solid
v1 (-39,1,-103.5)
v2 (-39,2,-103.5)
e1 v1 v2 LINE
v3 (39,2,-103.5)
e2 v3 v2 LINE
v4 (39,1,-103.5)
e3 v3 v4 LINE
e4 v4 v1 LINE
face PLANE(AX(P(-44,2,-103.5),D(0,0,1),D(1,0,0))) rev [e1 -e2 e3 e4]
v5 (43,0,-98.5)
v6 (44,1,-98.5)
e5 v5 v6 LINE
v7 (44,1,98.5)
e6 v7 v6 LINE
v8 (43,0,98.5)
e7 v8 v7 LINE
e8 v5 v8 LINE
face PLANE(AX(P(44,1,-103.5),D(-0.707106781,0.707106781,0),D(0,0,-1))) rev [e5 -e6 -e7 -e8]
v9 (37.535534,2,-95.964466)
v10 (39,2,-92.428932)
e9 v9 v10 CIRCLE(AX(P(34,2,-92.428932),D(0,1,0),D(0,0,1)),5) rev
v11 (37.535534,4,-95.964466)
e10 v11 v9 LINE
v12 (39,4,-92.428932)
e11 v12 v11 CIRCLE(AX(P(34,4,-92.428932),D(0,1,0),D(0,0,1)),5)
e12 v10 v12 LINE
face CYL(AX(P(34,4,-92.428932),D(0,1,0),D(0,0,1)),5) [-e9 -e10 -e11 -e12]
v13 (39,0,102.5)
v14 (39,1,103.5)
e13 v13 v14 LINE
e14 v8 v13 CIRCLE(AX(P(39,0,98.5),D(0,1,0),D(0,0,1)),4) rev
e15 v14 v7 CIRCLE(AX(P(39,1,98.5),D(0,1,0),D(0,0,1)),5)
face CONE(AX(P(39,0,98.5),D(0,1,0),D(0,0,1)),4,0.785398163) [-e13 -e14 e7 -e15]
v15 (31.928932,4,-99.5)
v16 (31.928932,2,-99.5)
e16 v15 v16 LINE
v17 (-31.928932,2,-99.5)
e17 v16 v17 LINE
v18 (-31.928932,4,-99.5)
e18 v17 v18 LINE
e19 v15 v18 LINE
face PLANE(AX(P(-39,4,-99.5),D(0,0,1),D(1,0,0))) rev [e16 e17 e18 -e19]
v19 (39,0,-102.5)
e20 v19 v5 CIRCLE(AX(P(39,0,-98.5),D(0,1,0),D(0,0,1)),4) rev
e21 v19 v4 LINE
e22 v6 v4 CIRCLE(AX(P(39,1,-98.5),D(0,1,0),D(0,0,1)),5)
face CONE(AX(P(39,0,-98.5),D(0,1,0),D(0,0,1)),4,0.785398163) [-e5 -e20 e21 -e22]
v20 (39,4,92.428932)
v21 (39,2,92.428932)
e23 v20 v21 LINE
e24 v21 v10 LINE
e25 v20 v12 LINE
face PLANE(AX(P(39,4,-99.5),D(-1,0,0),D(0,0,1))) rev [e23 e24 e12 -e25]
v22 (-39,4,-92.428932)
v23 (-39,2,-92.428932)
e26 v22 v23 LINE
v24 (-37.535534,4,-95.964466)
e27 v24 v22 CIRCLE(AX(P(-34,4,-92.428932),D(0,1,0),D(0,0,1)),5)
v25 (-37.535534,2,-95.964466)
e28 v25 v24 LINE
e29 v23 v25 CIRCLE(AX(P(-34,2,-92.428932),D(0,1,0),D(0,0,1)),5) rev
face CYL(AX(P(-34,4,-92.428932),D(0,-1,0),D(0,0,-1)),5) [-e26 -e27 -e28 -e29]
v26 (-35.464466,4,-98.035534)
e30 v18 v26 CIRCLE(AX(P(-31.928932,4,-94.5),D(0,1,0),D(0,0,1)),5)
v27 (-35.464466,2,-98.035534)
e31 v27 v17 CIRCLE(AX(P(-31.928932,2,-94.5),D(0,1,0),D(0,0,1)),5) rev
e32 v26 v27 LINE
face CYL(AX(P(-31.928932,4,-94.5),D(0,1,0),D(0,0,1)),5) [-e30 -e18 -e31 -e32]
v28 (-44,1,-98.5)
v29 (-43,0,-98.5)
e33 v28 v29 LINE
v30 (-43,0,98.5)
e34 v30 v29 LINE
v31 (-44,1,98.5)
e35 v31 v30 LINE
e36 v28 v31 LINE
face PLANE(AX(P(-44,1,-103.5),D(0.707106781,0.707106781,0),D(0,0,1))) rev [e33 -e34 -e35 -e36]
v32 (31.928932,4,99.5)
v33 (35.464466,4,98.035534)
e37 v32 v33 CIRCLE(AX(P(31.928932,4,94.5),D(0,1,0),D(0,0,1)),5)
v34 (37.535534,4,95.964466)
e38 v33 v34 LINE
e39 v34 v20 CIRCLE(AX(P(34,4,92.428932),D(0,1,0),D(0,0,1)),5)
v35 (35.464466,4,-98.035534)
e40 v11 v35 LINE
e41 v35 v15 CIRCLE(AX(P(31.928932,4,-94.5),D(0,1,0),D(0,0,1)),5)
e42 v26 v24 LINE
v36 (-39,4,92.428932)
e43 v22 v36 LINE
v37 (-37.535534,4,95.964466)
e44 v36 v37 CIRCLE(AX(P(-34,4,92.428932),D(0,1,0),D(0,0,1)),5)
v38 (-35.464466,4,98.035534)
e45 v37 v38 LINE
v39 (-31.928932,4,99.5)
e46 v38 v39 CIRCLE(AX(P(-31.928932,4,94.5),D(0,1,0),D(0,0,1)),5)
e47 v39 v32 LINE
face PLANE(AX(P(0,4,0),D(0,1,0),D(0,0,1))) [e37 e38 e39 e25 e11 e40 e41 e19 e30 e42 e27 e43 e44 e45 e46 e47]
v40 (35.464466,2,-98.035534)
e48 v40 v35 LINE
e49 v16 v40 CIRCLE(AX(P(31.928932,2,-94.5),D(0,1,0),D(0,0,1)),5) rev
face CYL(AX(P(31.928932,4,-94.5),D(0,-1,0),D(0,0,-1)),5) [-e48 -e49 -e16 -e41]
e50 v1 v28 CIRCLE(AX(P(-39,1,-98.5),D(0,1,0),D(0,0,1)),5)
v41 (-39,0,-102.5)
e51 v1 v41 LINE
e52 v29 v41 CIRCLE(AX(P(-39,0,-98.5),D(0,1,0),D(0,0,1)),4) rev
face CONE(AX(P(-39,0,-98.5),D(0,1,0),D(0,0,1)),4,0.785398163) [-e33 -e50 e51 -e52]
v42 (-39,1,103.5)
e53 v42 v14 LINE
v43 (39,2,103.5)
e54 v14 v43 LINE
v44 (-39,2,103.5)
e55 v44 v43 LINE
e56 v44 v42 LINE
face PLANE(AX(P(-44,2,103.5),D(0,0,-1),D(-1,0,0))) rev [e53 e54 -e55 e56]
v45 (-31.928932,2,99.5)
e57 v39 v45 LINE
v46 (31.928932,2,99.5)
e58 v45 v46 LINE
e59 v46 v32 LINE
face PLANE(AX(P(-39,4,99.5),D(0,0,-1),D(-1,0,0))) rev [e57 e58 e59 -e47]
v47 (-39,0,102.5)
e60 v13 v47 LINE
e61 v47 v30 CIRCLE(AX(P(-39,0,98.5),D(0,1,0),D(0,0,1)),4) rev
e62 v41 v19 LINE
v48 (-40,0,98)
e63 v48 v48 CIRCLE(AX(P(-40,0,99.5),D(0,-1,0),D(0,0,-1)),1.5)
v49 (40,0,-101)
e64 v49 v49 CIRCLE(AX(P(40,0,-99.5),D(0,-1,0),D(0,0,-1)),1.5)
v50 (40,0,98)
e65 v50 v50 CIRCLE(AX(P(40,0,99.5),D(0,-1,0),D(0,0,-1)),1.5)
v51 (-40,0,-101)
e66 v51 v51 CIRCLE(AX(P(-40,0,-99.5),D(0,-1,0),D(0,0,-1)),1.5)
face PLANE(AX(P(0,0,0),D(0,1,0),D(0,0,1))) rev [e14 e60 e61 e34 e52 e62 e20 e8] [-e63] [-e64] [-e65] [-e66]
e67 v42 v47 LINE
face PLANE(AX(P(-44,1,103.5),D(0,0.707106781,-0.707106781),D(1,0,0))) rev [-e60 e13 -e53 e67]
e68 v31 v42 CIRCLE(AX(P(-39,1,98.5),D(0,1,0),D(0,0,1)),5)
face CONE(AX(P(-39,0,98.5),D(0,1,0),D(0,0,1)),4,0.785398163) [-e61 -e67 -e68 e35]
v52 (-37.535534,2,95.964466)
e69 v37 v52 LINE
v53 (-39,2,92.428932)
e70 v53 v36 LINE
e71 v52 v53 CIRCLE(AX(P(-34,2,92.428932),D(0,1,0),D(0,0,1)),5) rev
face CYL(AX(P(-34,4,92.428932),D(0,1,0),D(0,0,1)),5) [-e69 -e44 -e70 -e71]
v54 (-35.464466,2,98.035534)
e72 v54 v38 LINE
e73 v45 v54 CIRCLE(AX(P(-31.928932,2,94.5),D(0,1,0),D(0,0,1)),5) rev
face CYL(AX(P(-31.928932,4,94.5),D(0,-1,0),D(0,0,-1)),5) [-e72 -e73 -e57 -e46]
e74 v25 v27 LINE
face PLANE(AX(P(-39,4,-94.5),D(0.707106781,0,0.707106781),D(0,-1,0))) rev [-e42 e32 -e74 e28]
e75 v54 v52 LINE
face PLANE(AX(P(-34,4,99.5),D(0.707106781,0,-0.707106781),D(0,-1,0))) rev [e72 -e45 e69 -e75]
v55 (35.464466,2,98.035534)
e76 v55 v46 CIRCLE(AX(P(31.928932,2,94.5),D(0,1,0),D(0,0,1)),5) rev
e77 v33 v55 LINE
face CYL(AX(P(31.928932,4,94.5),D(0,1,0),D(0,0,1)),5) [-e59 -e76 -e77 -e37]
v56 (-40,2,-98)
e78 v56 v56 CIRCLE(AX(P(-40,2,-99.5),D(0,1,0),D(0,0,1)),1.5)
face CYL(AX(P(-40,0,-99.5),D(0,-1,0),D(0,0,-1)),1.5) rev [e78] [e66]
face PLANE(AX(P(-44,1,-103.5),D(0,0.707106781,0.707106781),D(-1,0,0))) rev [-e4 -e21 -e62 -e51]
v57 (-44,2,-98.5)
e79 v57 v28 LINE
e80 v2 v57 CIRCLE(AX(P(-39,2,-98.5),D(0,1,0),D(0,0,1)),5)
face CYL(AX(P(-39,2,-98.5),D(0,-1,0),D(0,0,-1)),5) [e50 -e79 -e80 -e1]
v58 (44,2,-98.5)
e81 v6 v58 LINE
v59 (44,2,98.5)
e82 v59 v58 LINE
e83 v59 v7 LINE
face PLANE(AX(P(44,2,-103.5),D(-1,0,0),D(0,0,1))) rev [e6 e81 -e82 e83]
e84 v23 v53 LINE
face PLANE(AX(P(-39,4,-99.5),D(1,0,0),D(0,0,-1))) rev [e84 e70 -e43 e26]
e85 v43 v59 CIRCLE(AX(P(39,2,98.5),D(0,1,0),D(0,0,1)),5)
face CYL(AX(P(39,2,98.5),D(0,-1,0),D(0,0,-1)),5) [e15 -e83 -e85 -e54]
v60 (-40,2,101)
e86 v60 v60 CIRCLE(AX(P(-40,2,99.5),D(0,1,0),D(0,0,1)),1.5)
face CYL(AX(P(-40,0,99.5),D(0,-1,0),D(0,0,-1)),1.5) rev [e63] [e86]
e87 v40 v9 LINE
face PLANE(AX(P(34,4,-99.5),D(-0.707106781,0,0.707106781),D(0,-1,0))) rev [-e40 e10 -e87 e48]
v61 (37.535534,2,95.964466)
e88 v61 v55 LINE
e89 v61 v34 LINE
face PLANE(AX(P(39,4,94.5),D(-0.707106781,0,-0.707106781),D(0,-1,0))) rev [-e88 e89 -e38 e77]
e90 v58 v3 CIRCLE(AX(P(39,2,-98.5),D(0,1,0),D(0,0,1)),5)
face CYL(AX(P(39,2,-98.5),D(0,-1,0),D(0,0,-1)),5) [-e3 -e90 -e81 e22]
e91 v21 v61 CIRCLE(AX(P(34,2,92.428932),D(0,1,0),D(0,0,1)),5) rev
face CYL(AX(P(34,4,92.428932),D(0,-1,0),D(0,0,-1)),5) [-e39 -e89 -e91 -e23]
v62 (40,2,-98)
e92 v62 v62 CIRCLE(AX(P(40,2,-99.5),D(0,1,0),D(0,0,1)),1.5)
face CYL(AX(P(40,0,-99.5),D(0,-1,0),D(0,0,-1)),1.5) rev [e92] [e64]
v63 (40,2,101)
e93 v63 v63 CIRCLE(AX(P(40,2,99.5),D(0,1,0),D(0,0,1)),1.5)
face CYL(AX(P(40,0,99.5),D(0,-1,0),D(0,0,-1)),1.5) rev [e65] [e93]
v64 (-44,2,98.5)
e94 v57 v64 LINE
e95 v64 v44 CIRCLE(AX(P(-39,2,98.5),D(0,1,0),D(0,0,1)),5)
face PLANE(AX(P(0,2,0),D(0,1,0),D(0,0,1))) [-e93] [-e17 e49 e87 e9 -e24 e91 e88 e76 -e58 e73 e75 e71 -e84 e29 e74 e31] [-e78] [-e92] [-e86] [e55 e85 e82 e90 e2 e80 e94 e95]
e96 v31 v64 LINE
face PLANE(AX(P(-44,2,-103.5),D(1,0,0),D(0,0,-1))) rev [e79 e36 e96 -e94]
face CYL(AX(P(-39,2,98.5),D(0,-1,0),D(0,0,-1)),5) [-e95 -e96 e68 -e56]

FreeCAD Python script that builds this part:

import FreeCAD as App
import Part
import Sketcher


def edges_at(feature, points):
    """Names of the edges that pass closest to the given points."""
    edges = feature.Shape.Edges
    near = lambda p: min(range(len(edges)), key=lambda i: edges[i].distToShape(Part.Vertex(*p))[0])
    return sorted({f"Edge{near(p) + 1}" for p in points})


def add_polygon(sketch, points):
    """Adds a closed chain of lines whose ends are joined by coincident constraints."""
    first, n = sketch.GeometryCount, len(points)
    for a, b in zip(points, points[1:] + points[:1]):
        sketch.addGeometry(Part.LineSegment(App.Vector(*a, 0), App.Vector(*b, 0)), False)
    for i in range(n):
        sketch.addConstraint(Sketcher.Constraint("Coincident", first + i, 2, first + (i + 1) % n, 1))

doc = App.newDocument("Part")
body = doc.addObject("PartDesign::Body", "Body")

# Sketch on XZ plane
sketch1 = body.newObject("Sketcher::SketchObject", "Sketch")
sketch1.AttachmentSupport = (doc.getObject("XZ_Plane"), [""])
sketch1.MapMode = "FlatFace"
add_polygon(sketch1, [(-44, -104), (-44, 104), (44, 104), (44, -104)])  # lines 0-3
sketch1.addConstraint(Sketcher.Constraint("Vertical", 0))
sketch1.addConstraint(Sketcher.Constraint("Horizontal", 1))
sketch1.addConstraint(Sketcher.Constraint("Vertical", 2))
sketch1.addConstraint(Sketcher.Constraint("Horizontal", 3))
sketch1.addConstraint(Sketcher.Constraint("Symmetric", 0, 2, 2, 2, -1, 1))
sketch1.addConstraint(Sketcher.Constraint("DistanceX", 1, 1, 1, 2, 88.0))
sketch1.addConstraint(Sketcher.Constraint("DistanceY", 0, 1, 0, 2, 207.0))
pad1 = body.newObject("PartDesign::Pad", "Pad")
pad1.Profile = sketch1
pad1.Length = 2
pad1.Reversed = True

# Sketch on XZ plane
sketch2 = body.newObject("Sketcher::SketchObject", "Sketch001")
sketch2.AttachmentSupport = (doc.getObject("XZ_Plane"), [""])
sketch2.MapMode = "FlatFace"
sketch2.AttachmentOffset = App.Placement(App.Vector(0, 0, -2), App.Rotation())
add_polygon(sketch2, [(-39, -100), (-39, 100), (39, 100), (39, -100)])  # lines 0-3
sketch2.addConstraint(Sketcher.Constraint("Vertical", 0))
sketch2.addConstraint(Sketcher.Constraint("Horizontal", 1))
sketch2.addConstraint(Sketcher.Constraint("Vertical", 2))
sketch2.addConstraint(Sketcher.Constraint("Horizontal", 3))
sketch2.addConstraint(Sketcher.Constraint("Symmetric", 0, 2, 2, 2, -1, 1))
sketch2.addConstraint(Sketcher.Constraint("DistanceX", 1, 1, 1, 2, 78.0))
sketch2.addConstraint(Sketcher.Constraint("DistanceY", 0, 1, 0, 2, 199.0))
pad2 = body.newObject("PartDesign::Pad", "Pad001")
pad2.Profile = sketch2
pad2.Length = 2
pad2.Reversed = True
doc.recompute()

chamfer = body.newObject("PartDesign::Chamfer", "Chamfer")
chamfer.Base = (pad2, edges_at(pad2, [
    (39, 3, 99.5),
    (39, 3, -99.5),
    (-39, 3, -99.5),
    (-39, 3, 99.5),
]))
chamfer.Size = 5
doc.recompute()

fillet = body.newObject("PartDesign::Fillet", "Fillet")
fillet.Base = (chamfer, edges_at(chamfer, [
    (-39, 3, 94.5),
    (-39, 3, -94.5),
    (34, 3, -99.5),
    (-34, 3, -99.5),
    (39, 3, 94.5),
    (39, 3, -94.5),
    (34, 3, 99.5),
    (-34, 3, 99.5),
    (44, 1, 103.5),
    (-44, 1, 103.5),
    (-44, 1, -103.5),
    (44, 1, -103.5),
]))
fillet.Radius = 5

# Sketch on XZ plane
sketch3 = body.newObject("Sketcher::SketchObject", "Sketch002")
sketch3.AttachmentSupport = (doc.getObject("XZ_Plane"), [""])
sketch3.MapMode = "FlatFace"
sketch3.addGeometry(Part.Circle(App.Vector(40, -99.5, 0), App.Vector(0, 0, 1), 1.5), False)
sketch3.addGeometry(Part.Circle(App.Vector(-40, -99.5, 0), App.Vector(0, 0, 1), 1.5), False)
sketch3.addGeometry(Part.Circle(App.Vector(-40, 99.5, 0), App.Vector(0, 0, 1), 1.5), False)
sketch3.addGeometry(Part.Circle(App.Vector(40, 99.5, 0), App.Vector(0, 0, 1), 1.5), False)
sketch3.addConstraint(Sketcher.Constraint("Equal", 0, 1))
sketch3.addConstraint(Sketcher.Constraint("Equal", 1, 2))
sketch3.addConstraint(Sketcher.Constraint("Equal", 2, 3))
sketch3.addConstraint(Sketcher.Constraint("Symmetric", 0, 3, 2, 3, -1, 1))
sketch3.addConstraint(Sketcher.Constraint("Symmetric", 1, 3, 3, 3, -1, 1))
sketch3.addConstraint(Sketcher.Constraint("Symmetric", 0, 3, 1, 3, -2))
sketch3.addConstraint(Sketcher.Constraint("Diameter", 0, 3.0))
sketch3.addConstraint(Sketcher.Constraint("DistanceX", -1, 1, 0, 3, 40.0))
sketch3.addConstraint(Sketcher.Constraint("DistanceY", 1, 3, 2, 3, 199.0))
doc.recompute()
hole = body.newObject("PartDesign::Hole", "Hole")
hole.Profile = sketch3
hole.ThreadType = "None"
hole.Diameter = 3
hole.DepthType = "Dimension"
hole.Depth = 17.29
hole.DrillPoint = "Angled"
hole.DrillPointAngle = 118
doc.recompute()

chamfer2 = body.newObject("PartDesign::Chamfer", "Chamfer001")
chamfer2.Base = (hole, edges_at(hole, [
    (0, 0, 103.5),
    (44, 0, 0),
    (-44, 0, 0),
    (0, 0, -103.5),
    (-42.536, 0, -102.036),
    (42.536, 0, -102.036),
    (42.536, 0, 102.036),
    (-42.536, 0, 102.036),
]))
chamfer2.Size = 1

doc.recompute()
